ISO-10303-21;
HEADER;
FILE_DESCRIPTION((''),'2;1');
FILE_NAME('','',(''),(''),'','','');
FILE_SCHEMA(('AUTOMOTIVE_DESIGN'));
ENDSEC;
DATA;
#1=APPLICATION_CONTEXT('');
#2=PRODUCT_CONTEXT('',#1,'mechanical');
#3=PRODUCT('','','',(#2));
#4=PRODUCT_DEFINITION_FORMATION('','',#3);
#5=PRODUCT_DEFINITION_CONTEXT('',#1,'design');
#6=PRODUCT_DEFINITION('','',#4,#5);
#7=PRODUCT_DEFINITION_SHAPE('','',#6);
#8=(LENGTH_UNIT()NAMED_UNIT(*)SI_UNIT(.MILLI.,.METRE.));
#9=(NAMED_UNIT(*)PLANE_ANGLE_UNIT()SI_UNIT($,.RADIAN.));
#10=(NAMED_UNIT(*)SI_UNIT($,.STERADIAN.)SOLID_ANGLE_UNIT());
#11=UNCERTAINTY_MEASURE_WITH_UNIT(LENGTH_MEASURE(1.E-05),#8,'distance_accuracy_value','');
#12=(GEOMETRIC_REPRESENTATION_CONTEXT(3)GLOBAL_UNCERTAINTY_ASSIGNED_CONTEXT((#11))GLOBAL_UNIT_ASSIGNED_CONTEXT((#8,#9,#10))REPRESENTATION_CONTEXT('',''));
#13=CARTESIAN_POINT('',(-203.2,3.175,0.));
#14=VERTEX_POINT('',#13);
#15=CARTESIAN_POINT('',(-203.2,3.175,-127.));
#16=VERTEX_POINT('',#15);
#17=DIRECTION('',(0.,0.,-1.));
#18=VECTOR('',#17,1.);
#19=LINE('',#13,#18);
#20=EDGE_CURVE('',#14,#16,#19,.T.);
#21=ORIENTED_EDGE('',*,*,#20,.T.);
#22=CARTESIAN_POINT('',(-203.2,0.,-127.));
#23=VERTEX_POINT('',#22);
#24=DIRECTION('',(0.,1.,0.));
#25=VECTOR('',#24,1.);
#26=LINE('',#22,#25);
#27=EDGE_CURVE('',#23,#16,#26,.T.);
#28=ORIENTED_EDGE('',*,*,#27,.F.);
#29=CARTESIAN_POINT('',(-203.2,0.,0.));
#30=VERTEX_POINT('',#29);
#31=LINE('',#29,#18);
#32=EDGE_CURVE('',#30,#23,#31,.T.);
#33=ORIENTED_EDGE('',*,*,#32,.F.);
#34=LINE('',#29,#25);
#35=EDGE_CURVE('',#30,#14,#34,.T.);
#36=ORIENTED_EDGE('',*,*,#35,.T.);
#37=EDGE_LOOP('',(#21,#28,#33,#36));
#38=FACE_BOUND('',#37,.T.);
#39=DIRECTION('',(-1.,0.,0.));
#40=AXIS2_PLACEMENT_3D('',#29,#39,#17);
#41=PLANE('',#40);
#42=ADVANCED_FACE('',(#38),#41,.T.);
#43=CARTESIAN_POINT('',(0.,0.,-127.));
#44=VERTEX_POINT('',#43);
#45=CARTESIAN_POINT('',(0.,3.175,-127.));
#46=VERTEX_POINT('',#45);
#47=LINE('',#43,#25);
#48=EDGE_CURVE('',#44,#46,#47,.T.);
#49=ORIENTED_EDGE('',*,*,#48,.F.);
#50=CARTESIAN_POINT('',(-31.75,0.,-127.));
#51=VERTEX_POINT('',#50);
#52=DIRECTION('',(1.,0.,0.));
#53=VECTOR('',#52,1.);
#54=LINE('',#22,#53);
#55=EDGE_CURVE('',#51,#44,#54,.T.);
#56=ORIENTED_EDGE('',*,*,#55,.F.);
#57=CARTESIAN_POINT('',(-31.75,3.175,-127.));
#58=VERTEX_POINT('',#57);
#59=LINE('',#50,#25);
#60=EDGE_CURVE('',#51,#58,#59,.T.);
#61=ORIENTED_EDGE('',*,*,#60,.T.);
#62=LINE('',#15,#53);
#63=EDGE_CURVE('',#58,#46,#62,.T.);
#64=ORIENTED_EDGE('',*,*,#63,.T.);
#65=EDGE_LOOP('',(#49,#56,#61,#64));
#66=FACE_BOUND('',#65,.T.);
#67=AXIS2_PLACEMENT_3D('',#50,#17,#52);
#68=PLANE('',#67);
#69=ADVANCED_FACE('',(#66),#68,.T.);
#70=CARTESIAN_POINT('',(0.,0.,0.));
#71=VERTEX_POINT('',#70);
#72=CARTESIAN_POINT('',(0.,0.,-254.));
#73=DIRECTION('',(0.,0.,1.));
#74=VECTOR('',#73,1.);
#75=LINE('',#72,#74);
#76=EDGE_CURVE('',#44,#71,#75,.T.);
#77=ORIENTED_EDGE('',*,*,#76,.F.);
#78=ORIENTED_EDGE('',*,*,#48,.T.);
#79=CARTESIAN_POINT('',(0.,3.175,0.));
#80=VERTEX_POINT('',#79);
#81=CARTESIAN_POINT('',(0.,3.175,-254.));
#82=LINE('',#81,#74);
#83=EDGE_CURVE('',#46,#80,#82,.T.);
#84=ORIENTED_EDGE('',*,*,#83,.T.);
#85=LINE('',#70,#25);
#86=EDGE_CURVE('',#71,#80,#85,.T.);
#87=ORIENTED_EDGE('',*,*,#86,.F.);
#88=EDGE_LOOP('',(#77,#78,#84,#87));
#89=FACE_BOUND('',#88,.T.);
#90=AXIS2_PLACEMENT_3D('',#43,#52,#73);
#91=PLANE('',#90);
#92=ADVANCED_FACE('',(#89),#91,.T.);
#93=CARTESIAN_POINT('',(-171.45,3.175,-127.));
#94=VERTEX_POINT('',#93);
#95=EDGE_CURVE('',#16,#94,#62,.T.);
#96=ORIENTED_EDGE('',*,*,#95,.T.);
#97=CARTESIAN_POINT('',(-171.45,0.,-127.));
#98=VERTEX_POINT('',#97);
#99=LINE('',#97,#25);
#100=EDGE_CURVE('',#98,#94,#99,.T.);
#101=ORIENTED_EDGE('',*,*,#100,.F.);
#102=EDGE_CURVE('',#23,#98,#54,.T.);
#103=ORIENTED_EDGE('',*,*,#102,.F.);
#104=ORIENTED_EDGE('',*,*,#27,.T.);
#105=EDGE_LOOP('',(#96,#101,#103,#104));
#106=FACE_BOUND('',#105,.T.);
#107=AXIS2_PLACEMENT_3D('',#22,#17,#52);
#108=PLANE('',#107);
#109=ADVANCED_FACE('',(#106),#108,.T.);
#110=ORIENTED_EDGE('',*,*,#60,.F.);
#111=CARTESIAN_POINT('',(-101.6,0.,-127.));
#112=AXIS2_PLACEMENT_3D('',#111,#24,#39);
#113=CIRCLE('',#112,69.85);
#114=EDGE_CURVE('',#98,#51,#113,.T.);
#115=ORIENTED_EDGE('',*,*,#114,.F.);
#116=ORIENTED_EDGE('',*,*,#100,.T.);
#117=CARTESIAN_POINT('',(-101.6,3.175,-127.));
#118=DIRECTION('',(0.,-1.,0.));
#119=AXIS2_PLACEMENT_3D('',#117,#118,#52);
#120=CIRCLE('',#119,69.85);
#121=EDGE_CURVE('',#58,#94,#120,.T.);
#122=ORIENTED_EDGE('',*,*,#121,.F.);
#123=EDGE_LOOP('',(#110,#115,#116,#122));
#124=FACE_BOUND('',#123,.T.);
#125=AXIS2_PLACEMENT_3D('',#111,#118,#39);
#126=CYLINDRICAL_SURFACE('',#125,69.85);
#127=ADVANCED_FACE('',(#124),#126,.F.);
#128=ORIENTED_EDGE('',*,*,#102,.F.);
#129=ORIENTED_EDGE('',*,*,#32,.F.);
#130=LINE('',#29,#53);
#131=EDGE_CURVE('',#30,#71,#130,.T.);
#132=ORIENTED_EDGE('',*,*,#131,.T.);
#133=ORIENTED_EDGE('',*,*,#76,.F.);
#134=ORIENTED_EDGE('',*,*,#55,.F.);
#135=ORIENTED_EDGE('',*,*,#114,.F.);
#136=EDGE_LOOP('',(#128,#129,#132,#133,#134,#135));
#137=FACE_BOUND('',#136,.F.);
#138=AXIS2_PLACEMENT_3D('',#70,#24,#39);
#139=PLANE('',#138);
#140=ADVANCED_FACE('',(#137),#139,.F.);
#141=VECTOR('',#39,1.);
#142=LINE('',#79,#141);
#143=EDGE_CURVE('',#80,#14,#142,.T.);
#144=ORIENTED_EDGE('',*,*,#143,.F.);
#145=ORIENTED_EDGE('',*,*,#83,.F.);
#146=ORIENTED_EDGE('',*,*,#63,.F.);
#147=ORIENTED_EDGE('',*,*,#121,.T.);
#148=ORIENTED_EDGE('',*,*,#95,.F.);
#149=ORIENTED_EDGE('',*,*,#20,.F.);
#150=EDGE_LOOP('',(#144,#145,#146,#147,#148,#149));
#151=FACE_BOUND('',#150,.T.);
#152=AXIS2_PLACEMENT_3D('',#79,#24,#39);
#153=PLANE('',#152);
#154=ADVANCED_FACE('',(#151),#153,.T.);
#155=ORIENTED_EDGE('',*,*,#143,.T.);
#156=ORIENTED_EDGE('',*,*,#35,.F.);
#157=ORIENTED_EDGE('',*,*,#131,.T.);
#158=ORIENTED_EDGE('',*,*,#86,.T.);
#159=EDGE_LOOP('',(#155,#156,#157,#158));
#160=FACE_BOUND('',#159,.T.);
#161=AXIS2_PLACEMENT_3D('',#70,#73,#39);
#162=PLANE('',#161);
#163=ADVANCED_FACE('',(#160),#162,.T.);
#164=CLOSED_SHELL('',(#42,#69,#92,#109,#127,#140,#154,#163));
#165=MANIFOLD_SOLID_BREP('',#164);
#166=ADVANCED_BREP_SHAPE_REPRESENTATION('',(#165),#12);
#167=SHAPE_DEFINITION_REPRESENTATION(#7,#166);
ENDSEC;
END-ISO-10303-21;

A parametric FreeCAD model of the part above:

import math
import FreeCAD as App
import Part
import Sketcher
from FreeCAD import Vector
Q = App.Units.Quantity

doc = App.newDocument("Part")
body = doc.addObject("PartDesign::Body", "Body")

# Sketch on XZ plane
sketch1 = body.newObject("Sketcher::SketchObject", "Sketch")
sketch1.AttachmentSupport = (doc.getObject("XZ_Plane"), [""])
sketch1.MapMode = "FlatFace"
sketch1.addGeometry(Part.LineSegment(Vector(0, 0, 0), Vector(0, -127, 0)), False)
sketch1.addGeometry(Part.LineSegment(Vector(0, -127, 0), Vector(-32, -127, 0)), False)
sketch1.addGeometry(Part.ArcOfCircle(Part.Circle(Vector(-102, -127, 0), Vector(0, 0, 1), 70), math.radians(0), math.radians(180)), False)
sketch1.addGeometry(Part.LineSegment(Vector(-171, -127, 0), Vector(-203, -127, 0)), False)
sketch1.addGeometry(Part.LineSegment(Vector(-203, -127, 0), Vector(-203, 0, 0)), False)
sketch1.addGeometry(Part.LineSegment(Vector(-203, 0, 0), Vector(0, 0, 0)), False)
sketch1.addConstraint(Sketcher.Constraint("Coincident", 0, 2, 1, 1))
sketch1.addConstraint(Sketcher.Constraint("Coincident", 1, 2, 2, 1))
sketch1.addConstraint(Sketcher.Constraint("Coincident", 2, 2, 3, 1))
sketch1.addConstraint(Sketcher.Constraint("Coincident", 3, 2, 4, 1))
sketch1.addConstraint(Sketcher.Constraint("Coincident", 4, 2, 5, 1))
sketch1.addConstraint(Sketcher.Constraint("Coincident", 5, 2, 0, 1))
sketch1.addConstraint(Sketcher.Constraint("Vertical", 0))
sketch1.addConstraint(Sketcher.Constraint("Horizontal", 1))
sketch1.addConstraint(Sketcher.Constraint("Horizontal", 3))
sketch1.addConstraint(Sketcher.Constraint("Vertical", 4))
sketch1.addConstraint(Sketcher.Constraint("Horizontal", 5))
sketch1.addConstraint(Sketcher.Constraint("Coincident", 5, 2, -1, 1))
sketch1.addConstraint(Sketcher.Constraint("Horizontal", 2, 3, 0, 2))
sketch1.addConstraint(Sketcher.Constraint("Horizontal", 1, 2, 2, 2))
sketch1.addConstraint(Sketcher.Constraint("Equal", 1, 3))
sketch1.addConstraint(Sketcher.Constraint("DistanceX", 5, 1, 5, 2, Q("8 in")))
sketch1.addConstraint(Sketcher.Constraint("Radius", 2, Q("2.75 in")))
sketch1.addConstraint(Sketcher.Constraint("DistanceY", 0, 2, 0, 1, Q("5 in")))
pad1 = body.newObject("PartDesign::Pad", "Pad")
pad1.Profile = sketch1
pad1.Length = Q("0.125 in")
pad1.Reversed = True

doc.recompute()
